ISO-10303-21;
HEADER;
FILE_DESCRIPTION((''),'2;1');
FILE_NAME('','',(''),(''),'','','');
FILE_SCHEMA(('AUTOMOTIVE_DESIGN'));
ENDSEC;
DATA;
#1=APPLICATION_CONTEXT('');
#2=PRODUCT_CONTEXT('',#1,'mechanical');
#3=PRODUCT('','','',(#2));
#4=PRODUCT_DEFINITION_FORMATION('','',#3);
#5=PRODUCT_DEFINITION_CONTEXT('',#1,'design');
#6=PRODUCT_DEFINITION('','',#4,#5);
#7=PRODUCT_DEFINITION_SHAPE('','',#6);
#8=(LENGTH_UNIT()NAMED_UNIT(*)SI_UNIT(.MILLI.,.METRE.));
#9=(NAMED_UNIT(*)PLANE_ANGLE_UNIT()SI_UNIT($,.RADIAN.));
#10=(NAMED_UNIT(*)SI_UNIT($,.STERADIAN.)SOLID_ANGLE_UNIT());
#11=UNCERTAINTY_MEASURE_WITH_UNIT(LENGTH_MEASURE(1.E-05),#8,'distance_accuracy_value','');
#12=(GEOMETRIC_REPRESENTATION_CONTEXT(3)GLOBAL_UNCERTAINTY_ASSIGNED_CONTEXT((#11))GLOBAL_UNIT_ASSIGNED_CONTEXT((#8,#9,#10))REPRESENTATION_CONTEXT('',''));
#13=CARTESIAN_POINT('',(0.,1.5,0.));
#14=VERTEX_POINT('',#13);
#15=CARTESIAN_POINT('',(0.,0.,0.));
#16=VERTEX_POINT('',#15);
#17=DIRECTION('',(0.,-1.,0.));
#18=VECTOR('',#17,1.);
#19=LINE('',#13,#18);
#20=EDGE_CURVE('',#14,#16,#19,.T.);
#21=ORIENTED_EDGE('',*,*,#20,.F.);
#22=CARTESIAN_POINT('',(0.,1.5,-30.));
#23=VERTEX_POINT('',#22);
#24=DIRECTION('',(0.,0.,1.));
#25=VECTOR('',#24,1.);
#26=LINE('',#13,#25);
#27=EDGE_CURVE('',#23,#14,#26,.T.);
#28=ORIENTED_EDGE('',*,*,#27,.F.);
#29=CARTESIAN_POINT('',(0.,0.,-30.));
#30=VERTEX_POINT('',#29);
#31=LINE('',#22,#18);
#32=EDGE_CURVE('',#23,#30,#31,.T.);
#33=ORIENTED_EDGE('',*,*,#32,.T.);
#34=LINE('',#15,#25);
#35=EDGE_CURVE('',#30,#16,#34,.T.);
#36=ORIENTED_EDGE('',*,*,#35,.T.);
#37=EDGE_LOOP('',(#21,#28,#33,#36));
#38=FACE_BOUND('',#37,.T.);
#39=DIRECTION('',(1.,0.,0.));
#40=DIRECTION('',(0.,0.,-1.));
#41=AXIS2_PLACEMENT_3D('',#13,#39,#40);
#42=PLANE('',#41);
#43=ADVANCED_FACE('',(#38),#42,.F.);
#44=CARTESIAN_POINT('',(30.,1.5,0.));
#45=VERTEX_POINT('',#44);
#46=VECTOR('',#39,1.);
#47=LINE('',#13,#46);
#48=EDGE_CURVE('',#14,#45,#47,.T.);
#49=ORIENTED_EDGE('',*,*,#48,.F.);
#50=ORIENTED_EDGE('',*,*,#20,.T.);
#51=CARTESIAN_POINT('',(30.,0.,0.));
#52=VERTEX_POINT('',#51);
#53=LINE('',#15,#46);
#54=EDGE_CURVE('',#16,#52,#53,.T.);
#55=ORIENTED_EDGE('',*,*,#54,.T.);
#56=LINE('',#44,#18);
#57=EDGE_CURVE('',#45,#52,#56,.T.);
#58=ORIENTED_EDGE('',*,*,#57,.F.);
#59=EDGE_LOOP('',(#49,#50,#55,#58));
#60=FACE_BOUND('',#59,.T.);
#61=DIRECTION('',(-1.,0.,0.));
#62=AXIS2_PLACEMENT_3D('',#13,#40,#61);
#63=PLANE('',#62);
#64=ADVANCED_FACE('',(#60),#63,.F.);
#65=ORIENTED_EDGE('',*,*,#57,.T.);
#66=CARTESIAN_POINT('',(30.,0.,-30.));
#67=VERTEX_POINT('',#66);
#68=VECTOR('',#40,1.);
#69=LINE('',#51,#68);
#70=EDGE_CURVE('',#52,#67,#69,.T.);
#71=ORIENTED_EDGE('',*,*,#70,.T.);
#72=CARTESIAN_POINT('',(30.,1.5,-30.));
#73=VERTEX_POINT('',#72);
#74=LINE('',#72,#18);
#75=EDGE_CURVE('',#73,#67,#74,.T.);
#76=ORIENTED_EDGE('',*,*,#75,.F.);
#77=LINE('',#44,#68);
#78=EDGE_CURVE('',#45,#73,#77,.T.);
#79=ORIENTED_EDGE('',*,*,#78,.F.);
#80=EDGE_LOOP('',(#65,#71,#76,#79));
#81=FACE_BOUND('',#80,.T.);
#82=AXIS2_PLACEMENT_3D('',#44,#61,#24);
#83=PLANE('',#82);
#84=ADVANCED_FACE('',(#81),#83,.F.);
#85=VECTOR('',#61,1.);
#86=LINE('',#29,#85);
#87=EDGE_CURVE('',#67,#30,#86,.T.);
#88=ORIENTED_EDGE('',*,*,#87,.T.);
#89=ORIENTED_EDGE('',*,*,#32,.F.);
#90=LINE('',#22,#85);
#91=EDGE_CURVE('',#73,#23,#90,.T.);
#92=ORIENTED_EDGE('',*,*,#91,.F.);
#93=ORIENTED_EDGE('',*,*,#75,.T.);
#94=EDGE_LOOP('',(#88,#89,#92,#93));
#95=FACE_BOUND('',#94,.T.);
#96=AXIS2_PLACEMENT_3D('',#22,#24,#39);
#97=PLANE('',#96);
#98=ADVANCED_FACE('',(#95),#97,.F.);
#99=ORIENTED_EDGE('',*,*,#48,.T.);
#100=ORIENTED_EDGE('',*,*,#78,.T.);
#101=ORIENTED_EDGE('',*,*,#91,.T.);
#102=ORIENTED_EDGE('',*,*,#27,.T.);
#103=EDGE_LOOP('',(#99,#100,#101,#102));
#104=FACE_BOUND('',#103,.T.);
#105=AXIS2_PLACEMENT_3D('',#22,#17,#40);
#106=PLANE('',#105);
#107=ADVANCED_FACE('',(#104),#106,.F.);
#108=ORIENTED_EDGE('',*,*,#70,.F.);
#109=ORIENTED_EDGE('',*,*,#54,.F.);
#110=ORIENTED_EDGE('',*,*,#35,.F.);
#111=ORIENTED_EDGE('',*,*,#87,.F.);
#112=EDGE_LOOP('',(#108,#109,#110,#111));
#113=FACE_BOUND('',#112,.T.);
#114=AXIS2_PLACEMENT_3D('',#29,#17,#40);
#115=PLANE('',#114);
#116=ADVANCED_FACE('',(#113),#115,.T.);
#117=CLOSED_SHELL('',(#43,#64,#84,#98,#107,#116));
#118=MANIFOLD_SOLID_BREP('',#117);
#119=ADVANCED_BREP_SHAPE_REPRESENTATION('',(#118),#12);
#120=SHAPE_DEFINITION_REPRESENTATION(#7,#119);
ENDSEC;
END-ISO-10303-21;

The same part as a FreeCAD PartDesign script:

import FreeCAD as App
import Part
import Sketcher
from FreeCAD import Vector


def add_polygon(sketch, points):
    """Adds a closed chain of lines whose ends are joined by coincident constraints."""
    first, n = sketch.GeometryCount, len(points)
    for a, b in zip(points, points[1:] + points[:1]):
        sketch.addGeometry(Part.LineSegment(App.Vector(*a, 0), App.Vector(*b, 0)), False)
    for i in range(n):
        sketch.addConstraint(Sketcher.Constraint("Coincident", first + i, 2, first + (i + 1) % n, 1))

doc = App.newDocument("Part")
body = doc.addObject("PartDesign::Body", "Body")

# Sketch on XZ plane
sketch1 = doc.addObject("Sketcher::SketchObject", "Sketch")
body.addObject(sketch1)
sketch1.AttachmentSupport = (doc.XZ_Plane, [""])
sketch1.MapMode = "FlatFace"
add_polygon(sketch1, [(0, -30), (0, 0), (30, 0), (30, -30)])  # lines 0-3
sketch1.addConstraint(Sketcher.Constraint("Vertical", 0))
sketch1.addConstraint(Sketcher.Constraint("Horizontal", 1))
sketch1.addConstraint(Sketcher.Constraint("Vertical", 2))
sketch1.addConstraint(Sketcher.Constraint("Horizontal", 3))
sketch1.addConstraint(Sketcher.Constraint("Coincident", 0, 2, -1, 1))
sketch1.addConstraint(Sketcher.Constraint("Equal", 3, 0))
sketch1.addConstraint(Sketcher.Constraint("DistanceX", 1, 1, 1, 2, 30.0))
pad1 = doc.addObject("PartDesign::Pad", "Pad")
body.addObject(pad1)
pad1.Profile = sketch1
pad1.Length = 1.5
pad1.Reversed = True

doc.recompute()
